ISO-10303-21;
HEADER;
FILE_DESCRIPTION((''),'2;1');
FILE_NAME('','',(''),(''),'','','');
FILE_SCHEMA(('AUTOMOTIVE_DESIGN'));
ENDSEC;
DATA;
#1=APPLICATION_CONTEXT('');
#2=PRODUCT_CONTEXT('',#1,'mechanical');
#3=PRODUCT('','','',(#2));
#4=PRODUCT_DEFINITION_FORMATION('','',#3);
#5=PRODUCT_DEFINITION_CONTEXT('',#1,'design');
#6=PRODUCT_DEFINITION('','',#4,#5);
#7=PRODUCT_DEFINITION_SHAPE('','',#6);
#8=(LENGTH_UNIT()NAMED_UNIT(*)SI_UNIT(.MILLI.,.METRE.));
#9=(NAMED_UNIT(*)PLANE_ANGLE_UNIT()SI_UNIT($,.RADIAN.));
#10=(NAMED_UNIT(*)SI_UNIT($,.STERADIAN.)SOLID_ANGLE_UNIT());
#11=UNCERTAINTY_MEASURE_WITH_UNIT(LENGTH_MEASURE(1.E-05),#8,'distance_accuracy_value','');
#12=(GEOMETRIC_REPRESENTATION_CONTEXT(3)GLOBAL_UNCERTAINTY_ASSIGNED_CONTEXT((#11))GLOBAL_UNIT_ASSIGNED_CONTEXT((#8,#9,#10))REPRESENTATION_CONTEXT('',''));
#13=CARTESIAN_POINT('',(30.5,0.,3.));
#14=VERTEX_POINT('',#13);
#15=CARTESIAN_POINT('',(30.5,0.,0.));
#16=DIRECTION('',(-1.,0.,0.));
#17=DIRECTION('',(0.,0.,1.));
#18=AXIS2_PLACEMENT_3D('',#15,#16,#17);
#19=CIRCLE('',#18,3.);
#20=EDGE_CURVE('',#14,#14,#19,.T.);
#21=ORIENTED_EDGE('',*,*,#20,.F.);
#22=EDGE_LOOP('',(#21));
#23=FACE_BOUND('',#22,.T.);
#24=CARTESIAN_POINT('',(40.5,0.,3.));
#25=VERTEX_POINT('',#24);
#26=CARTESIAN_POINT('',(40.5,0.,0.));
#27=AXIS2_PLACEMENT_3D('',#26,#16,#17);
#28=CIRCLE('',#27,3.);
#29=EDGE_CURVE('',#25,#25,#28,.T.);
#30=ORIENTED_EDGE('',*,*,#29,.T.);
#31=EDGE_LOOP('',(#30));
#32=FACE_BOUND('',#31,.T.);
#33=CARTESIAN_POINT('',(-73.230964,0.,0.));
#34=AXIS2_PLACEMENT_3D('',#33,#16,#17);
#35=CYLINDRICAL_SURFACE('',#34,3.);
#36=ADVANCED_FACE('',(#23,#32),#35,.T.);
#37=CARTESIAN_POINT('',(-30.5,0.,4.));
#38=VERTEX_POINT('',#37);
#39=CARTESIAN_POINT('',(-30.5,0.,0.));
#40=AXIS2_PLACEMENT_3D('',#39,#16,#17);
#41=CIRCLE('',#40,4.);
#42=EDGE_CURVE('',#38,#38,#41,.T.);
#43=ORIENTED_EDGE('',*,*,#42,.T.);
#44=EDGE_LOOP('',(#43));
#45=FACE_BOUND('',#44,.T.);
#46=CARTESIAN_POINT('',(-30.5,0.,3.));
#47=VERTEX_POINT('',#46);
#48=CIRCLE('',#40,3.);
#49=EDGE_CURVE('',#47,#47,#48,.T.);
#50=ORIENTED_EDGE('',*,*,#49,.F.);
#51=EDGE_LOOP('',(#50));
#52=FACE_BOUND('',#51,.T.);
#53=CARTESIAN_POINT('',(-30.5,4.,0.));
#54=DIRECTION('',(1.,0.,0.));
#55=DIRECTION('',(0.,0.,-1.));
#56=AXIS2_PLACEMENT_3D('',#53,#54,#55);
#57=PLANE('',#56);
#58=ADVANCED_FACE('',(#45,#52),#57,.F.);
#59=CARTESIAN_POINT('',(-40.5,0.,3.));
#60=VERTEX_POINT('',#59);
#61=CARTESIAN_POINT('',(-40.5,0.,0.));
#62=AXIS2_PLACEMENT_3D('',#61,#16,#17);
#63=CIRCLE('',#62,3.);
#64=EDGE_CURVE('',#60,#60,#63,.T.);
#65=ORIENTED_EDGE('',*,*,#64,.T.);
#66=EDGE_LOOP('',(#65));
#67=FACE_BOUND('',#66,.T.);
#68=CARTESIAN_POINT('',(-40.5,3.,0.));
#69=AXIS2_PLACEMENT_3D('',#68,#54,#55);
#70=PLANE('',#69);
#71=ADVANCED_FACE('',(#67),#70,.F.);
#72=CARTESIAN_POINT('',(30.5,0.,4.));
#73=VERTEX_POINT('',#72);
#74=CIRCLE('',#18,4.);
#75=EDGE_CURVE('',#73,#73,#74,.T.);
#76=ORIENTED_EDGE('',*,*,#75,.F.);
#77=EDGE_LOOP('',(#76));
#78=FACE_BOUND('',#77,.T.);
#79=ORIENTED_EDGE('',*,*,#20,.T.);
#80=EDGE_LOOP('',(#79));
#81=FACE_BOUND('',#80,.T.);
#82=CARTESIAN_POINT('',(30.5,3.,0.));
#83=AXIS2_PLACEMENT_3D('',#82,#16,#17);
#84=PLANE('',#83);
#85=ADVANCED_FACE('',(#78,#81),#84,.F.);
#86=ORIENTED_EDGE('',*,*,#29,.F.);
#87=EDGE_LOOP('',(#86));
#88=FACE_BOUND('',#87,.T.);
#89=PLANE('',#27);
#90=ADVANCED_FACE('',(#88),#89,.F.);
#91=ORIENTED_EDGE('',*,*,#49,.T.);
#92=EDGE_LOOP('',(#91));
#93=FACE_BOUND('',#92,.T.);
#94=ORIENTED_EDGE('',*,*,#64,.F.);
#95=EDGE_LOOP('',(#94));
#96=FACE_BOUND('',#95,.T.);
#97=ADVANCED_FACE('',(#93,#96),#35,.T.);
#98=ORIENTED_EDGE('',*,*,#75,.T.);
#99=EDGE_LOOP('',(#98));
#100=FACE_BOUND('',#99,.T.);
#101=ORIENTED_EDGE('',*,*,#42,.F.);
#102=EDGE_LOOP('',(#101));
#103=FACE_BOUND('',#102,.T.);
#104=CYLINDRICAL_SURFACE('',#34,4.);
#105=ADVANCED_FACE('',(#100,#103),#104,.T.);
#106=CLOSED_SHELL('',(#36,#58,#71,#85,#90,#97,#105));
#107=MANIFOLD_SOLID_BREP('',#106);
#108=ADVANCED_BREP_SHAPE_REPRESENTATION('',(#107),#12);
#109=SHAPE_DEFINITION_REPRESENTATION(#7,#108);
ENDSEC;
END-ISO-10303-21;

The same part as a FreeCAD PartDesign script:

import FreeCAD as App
import Part
import Sketcher


def add_polygon(sketch, points):
    """Adds a closed chain of lines whose ends are joined by coincident constraints."""
    first, n = sketch.GeometryCount, len(points)
    for a, b in zip(points, points[1:] + points[:1]):
        sketch.addGeometry(Part.LineSegment(App.Vector(*a, 0), App.Vector(*b, 0)), False)
    for i in range(n):
        sketch.addConstraint(Sketcher.Constraint("Coincident", first + i, 2, first + (i + 1) % n, 1))

doc = App.newDocument("Part")
body = doc.addObject("PartDesign::Body", "Body")

# Sketch on XY plane
sketch1 = body.newObject("Sketcher::SketchObject", "Sketch")
sketch1.AttachmentSupport = (doc.getObject("XY_Plane"), [""])
sketch1.MapMode = "FlatFace"
add_polygon(sketch1, [(-40.5, 0), (40.5, 0), (40.5, 3), (30.5, 3), (30.5, 4), (-30.5, 4), (-30.5, 3), (-40.5, 3)])  # lines 0-7
sketch1.addConstraint(Sketcher.Constraint("Horizontal", 0))
sketch1.addConstraint(Sketcher.Constraint("Vertical", 1))
sketch1.addConstraint(Sketcher.Constraint("Horizontal", 2))
sketch1.addConstraint(Sketcher.Constraint("Vertical", 3))
sketch1.addConstraint(Sketcher.Constraint("Horizontal", 4))
sketch1.addConstraint(Sketcher.Constraint("Vertical", 5))
sketch1.addConstraint(Sketcher.Constraint("Horizontal", 6))
sketch1.addConstraint(Sketcher.Constraint("Vertical", 7))
sketch1.addConstraint(Sketcher.Constraint("Symmetric", 0, 2, 7, 2, -1, 1))
sketch1.addConstraint(Sketcher.Constraint("Symmetric", 2, 2, 5, 2, -2))
sketch1.addConstraint(Sketcher.Constraint("DistanceX", 0, 1, 0, 2, 81.0))
sketch1.addConstraint(Sketcher.Constraint("DistanceX", 2, 2, 2, 1, 10.0))
sketch1.addConstraint(Sketcher.Constraint("DistanceY", 1, 1, 1, 2, 3.0))
sketch1.addConstraint(Sketcher.Constraint("DistanceY", 3, 1, 3, 2, 1.0))
revolution = body.newObject("PartDesign::Revolution", "Revolution")
revolution.Profile = sketch1
revolution.ReferenceAxis = (sketch1, ["H_Axis"])
revolution.Angle = 360

doc.recompute()
